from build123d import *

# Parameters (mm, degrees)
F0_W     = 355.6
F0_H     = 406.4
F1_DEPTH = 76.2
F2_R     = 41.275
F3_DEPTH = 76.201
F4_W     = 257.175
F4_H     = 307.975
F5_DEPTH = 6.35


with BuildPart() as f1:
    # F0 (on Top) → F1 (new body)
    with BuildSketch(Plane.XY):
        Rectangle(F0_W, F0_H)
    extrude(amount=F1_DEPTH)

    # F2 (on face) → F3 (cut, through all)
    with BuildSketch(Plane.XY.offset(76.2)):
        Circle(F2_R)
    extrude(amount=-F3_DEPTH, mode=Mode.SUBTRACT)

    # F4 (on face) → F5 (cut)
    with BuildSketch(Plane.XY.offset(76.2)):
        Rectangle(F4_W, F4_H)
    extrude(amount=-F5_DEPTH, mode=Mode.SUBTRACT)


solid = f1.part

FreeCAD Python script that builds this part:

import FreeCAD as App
import Part
import Sketcher
from FreeCAD import Vector
Q = App.Units.Quantity


def add_polygon(sketch, points):
    """Adds a closed chain of lines whose ends are joined by coincident constraints."""
    first, n = sketch.GeometryCount, len(points)
    for a, b in zip(points, points[1:] + points[:1]):
        sketch.addGeometry(Part.LineSegment(App.Vector(*a, 0), App.Vector(*b, 0)), False)
    for i in range(n):
        sketch.addConstraint(Sketcher.Constraint("Coincident", first + i, 2, first + (i + 1) % n, 1))

doc = App.newDocument("Part")
body = doc.addObject("PartDesign::Body", "Body")

sketch1 = doc.addObject("Sketcher::SketchObject", "Sketch")
body.addObject(sketch1)
sketch1.AttachmentSupport = (doc.XY_Plane, [""])
sketch1.MapMode = "FlatFace"
add_polygon(sketch1, [(-178, 203), (-178, -203), (178, -203), (178, 203)])
sketch1.addConstraint(Sketcher.Constraint("Vertical", 0))
sketch1.addConstraint(Sketcher.Constraint("Horizontal", 1))
sketch1.addConstraint(Sketcher.Constraint("Vertical", 2))
sketch1.addConstraint(Sketcher.Constraint("Horizontal", 3))
sketch1.addConstraint(Sketcher.Constraint("Symmetric", 0, 2, 2, 2, -1, 1))
sketch1.addConstraint(Sketcher.Constraint("DistanceX", 1, 1, 1, 2, Q("14 in")))
sketch1.addConstraint(Sketcher.Constraint("DistanceY", 0, 2, 0, 1, Q("16 in")))
pad1 = doc.addObject("PartDesign::Pad", "Pad")
body.addObject(pad1)
pad1.Profile = sketch1
pad1.Length = Q("3 in")

sketch2 = doc.addObject("Sketcher::SketchObject", "Sketch001")
body.addObject(sketch2)
sketch2.AttachmentSupport = (doc.XY_Plane, [""])
sketch2.MapMode = "FlatFace"
sketch2.AttachmentOffset = App.Placement(Vector(0, 0, 3 * 25.4), App.Rotation())
sketch2.addGeometry(Part.Circle(Vector(0, 0, 0), Vector(0, 0, 1), 41), False)
sketch2.addConstraint(Sketcher.Constraint("Coincident", 0, 3, -1, 1))
sketch2.addConstraint(Sketcher.Constraint("Diameter", 0, Q("3.25 in")))
pocket1 = doc.addObject("PartDesign::Pocket", "Pocket")
body.addObject(pocket1)
pocket1.Profile = sketch2
pocket1.Type = "ThroughAll"

sketch3 = doc.addObject("Sketcher::SketchObject", "Sketch002")
body.addObject(sketch3)
sketch3.AttachmentSupport = (doc.XY_Plane, [""])
sketch3.MapMode = "FlatFace"
sketch3.AttachmentOffset = App.Placement(Vector(0, 0, 3 * 25.4), App.Rotation())
add_polygon(sketch3, [(-129, 154), (-129, -154), (129, -154), (129, 154)])
sketch3.addConstraint(Sketcher.Constraint("Vertical", 0))
sketch3.addConstraint(Sketcher.Constraint("Horizontal", 1))
sketch3.addConstraint(Sketcher.Constraint("Vertical", 2))
sketch3.addConstraint(Sketcher.Constraint("Horizontal", 3))
sketch3.addConstraint(Sketcher.Constraint("Symmetric", 0, 2, 2, 2, -1, 1))
sketch3.addConstraint(Sketcher.Constraint("DistanceX", 1, 1, 1, 2, Q("10.125 in")))
sketch3.addConstraint(Sketcher.Constraint("DistanceY", 0, 2, 0, 1, Q("12.125 in")))
pocket2 = doc.addObject("PartDesign::Pocket", "Pocket001")
body.addObject(pocket2)
pocket2.Profile = sketch3
pocket2.Length = Q("0.25 in")

doc.recompute()
